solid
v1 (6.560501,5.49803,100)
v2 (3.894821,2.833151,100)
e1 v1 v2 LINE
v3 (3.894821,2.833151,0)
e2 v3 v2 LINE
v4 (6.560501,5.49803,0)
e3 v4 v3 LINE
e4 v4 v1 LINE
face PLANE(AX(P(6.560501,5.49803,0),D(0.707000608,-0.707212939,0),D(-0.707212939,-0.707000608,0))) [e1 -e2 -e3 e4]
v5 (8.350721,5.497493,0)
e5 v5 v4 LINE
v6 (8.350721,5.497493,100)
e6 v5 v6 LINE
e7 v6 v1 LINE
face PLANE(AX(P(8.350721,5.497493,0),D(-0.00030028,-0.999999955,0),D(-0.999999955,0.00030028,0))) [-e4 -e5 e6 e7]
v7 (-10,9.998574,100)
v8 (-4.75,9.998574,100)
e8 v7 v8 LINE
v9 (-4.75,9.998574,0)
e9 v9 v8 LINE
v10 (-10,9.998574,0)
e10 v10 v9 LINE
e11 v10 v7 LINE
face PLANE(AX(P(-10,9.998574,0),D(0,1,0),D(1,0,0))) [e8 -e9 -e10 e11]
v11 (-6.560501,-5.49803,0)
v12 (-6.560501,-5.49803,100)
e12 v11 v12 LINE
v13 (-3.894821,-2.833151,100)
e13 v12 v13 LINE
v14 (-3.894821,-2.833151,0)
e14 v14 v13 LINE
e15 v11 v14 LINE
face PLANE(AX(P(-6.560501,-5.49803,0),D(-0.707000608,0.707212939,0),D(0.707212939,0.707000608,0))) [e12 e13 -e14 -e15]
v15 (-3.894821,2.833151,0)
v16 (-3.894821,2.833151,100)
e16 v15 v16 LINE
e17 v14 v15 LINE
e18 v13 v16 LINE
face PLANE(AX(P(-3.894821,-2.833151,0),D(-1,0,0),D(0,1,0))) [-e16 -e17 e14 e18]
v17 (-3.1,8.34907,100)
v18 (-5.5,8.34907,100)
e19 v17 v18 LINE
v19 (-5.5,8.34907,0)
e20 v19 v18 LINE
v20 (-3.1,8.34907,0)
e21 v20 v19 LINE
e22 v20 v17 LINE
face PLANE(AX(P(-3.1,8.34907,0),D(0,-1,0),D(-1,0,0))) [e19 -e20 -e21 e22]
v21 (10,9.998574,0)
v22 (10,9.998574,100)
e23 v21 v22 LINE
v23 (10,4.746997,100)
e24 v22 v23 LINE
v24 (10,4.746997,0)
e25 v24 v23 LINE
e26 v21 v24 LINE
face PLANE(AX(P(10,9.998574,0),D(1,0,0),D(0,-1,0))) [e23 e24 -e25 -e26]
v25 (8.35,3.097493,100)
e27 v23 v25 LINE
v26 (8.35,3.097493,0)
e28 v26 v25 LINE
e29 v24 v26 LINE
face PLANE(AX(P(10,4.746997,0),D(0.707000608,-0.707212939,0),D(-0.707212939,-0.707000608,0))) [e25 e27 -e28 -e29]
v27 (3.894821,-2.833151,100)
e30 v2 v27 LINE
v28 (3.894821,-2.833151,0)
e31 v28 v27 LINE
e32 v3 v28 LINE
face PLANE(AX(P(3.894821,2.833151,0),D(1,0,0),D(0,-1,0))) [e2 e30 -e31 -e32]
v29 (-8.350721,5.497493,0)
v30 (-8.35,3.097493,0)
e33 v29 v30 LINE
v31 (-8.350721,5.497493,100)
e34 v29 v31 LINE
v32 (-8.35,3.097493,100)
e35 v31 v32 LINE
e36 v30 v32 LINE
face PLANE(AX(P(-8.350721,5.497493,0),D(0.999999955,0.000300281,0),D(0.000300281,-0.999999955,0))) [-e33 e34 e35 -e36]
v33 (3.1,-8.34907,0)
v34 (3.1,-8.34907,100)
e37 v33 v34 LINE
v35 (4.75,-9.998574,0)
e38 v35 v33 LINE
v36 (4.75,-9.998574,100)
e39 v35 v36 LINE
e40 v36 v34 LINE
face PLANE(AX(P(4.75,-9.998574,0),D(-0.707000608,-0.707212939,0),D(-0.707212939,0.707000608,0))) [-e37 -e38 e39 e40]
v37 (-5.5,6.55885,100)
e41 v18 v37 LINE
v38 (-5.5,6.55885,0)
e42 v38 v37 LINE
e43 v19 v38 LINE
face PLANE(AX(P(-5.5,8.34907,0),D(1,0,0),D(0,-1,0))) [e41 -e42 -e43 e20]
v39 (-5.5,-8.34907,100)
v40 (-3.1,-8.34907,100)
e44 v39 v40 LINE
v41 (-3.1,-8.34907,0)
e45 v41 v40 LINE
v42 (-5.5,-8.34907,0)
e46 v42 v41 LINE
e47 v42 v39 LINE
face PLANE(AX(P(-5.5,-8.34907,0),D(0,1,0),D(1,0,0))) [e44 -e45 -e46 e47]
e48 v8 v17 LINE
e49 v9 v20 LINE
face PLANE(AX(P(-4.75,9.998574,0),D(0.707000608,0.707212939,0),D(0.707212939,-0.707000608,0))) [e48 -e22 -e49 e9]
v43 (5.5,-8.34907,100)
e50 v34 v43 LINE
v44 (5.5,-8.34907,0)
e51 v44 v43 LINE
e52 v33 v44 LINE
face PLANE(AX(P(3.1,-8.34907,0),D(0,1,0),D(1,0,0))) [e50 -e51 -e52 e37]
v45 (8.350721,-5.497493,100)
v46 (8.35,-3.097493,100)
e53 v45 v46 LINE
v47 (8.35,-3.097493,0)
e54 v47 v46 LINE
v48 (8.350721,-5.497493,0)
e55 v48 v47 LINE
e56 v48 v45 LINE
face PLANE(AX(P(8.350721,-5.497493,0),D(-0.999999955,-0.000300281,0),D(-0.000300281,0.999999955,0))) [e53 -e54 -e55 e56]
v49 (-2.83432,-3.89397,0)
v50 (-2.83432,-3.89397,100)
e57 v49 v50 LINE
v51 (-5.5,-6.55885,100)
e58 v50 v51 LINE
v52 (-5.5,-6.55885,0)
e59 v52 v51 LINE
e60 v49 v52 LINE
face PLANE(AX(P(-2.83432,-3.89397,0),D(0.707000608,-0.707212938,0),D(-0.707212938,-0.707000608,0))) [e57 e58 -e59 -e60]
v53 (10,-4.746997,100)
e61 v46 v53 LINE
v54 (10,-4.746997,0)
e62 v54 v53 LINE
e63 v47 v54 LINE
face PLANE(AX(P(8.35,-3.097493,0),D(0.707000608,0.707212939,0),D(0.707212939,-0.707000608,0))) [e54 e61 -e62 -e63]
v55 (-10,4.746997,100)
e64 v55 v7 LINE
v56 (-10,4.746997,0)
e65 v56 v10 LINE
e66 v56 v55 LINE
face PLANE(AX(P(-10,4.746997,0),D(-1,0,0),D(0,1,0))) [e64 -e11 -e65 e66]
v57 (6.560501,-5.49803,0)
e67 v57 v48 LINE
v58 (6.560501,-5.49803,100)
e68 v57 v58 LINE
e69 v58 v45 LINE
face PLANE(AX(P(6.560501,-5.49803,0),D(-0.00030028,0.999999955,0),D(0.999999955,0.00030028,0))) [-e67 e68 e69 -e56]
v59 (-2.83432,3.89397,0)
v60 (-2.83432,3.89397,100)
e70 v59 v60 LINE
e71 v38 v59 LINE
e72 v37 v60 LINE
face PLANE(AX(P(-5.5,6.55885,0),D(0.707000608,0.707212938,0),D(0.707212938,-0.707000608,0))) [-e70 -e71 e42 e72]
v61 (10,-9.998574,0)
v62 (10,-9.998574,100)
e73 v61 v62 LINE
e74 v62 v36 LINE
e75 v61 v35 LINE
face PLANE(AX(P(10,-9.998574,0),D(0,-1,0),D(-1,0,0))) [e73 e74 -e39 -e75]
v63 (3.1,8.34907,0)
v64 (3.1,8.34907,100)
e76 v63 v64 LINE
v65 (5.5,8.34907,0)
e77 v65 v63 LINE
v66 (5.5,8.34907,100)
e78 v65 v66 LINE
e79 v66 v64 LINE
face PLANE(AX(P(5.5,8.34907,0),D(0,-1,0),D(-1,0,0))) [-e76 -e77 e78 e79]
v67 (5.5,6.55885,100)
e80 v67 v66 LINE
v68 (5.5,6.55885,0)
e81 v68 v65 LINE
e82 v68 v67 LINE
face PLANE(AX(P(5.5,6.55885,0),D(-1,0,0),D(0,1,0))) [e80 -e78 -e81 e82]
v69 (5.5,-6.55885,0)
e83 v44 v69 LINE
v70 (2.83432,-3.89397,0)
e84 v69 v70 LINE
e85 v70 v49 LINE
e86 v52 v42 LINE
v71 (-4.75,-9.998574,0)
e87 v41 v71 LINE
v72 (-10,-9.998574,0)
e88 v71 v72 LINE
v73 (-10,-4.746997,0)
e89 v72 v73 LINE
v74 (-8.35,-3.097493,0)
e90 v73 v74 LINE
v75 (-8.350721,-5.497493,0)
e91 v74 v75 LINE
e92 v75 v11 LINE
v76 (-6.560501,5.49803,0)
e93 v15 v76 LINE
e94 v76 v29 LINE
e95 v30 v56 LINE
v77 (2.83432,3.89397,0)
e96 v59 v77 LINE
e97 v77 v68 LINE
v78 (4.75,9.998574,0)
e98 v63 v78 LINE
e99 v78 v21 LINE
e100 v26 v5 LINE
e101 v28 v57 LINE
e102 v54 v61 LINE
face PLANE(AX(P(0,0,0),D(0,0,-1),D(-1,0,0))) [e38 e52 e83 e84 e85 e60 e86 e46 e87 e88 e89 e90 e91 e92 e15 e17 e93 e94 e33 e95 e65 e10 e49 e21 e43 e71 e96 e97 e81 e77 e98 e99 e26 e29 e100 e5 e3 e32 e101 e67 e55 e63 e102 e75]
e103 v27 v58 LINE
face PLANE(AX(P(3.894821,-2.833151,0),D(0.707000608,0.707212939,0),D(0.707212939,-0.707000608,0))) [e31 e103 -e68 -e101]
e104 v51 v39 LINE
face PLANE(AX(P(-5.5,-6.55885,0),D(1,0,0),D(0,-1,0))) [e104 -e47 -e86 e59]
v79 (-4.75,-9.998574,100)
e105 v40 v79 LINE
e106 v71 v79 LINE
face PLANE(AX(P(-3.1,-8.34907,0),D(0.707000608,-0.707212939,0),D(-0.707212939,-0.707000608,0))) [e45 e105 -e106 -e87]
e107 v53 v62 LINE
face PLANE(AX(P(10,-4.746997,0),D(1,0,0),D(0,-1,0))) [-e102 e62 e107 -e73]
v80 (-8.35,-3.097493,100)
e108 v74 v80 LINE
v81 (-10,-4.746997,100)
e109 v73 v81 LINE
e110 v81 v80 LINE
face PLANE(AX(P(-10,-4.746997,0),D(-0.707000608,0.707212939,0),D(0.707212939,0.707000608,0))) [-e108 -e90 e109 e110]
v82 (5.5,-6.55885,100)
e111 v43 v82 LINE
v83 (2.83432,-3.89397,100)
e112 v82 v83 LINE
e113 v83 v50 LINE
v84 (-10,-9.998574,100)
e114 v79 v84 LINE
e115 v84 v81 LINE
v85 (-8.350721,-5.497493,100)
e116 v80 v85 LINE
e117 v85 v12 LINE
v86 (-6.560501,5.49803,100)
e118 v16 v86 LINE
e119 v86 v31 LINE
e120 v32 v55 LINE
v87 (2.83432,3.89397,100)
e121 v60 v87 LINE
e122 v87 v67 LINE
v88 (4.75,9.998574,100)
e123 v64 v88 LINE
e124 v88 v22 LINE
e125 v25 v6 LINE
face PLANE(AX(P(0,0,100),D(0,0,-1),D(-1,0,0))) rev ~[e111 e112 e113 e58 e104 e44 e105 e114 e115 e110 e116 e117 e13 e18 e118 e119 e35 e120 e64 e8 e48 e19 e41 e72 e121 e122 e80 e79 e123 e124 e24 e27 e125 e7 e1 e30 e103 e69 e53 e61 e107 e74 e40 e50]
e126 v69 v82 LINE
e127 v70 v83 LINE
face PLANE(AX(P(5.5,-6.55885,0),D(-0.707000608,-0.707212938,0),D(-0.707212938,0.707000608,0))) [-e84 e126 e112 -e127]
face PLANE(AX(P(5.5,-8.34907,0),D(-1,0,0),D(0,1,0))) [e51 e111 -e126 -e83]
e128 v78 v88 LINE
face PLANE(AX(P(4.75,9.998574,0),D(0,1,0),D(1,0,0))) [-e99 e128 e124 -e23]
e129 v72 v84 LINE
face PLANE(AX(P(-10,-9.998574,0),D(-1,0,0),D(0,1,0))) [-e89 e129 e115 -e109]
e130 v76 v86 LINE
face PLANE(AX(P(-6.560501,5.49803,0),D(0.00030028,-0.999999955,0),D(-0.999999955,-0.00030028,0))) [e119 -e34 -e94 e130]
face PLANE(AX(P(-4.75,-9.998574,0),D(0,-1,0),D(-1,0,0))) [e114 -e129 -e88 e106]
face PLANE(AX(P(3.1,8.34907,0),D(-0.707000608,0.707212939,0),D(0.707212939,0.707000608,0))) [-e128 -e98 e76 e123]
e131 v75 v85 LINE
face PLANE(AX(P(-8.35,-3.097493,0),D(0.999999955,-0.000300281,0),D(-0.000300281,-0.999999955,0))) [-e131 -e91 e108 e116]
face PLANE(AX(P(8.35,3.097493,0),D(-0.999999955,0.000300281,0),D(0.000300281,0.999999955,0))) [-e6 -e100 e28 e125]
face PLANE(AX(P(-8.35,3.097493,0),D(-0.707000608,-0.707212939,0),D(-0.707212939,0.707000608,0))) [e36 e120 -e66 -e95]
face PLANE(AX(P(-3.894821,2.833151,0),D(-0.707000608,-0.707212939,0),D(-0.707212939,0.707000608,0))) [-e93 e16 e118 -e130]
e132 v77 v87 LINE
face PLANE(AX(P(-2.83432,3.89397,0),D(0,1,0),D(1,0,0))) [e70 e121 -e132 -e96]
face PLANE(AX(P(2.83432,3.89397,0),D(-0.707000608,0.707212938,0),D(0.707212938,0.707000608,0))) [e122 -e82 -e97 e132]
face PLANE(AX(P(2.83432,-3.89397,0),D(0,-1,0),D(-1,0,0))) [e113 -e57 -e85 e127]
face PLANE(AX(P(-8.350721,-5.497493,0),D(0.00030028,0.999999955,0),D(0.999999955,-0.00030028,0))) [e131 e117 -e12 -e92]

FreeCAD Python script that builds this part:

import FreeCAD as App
import Part
import Sketcher


def add_polygon(sketch, points):
    """Adds a closed chain of lines whose ends are joined by coincident constraints."""
    first, n = sketch.GeometryCount, len(points)
    for a, b in zip(points, points[1:] + points[:1]):
        sketch.addGeometry(Part.LineSegment(App.Vector(*a, 0), App.Vector(*b, 0)), False)
    for i in range(n):
        sketch.addConstraint(Sketcher.Constraint("Coincident", first + i, 2, first + (i + 1) % n, 1))

doc = App.newDocument("Part")
body = doc.addObject("PartDesign::Body", "Body")

# Sketch on XY plane
sketch1 = doc.addObject("Sketcher::SketchObject", "Sketch")
body.addObject(sketch1)
sketch1.AttachmentSupport = (doc.XY_Plane, [""])
sketch1.MapMode = "FlatFace"
add_polygon(sketch1, [(2.83432, 3.89397), (-2.83432, 3.89397), (-5.5, 6.55885), (-5.5, 8.34907), (-3.1, 8.34907), (-4.75, 9.998574), (-10, 9.998574), (-10, 4.746997), (-8.35, 3.097493), (-8.350721, 5.497493), (-6.560501, 5.49803), (-3.894821, 2.833151), (-3.894821, -2.833151), (-6.560501, -5.49803), (-8.350721, -5.497493), (-8.35, -3.097493), (-10, -4.746997), (-10, -9.998574), (-4.75, -9.998574), (-3.1, -8.34907), (-5.5, -8.34907), (-5.5, -6.55885), (-2.83432, -3.89397), (2.83432, -3.89397), (5.5, -6.55885), (5.5, -8.34907), (3.1, -8.34907), (4.75, -9.998574), (10, -9.998574), (10, -4.746997), (8.35, -3.097493), (8.350721, -5.497493), (6.560501, -5.49803), (3.894821, -2.833151), (3.894821, 2.833151), (6.560501, 5.49803), (8.350721, 5.497493), (8.35, 3.097493), (10, 4.746997), (10, 9.998574), (4.75, 9.998574), (3.1, 8.34907), (5.5, 8.34907), (5.5, 6.55885)])  # lines 0-43
sketch1.addConstraint([
    Sketcher.Constraint("Horizontal", 0),
    Sketcher.Constraint("Vertical", 2),
    Sketcher.Constraint("Horizontal", 3),
    Sketcher.Constraint("Horizontal", 5),
    Sketcher.Constraint("Vertical", 6),
    Sketcher.Constraint("Vertical", 11),
    Sketcher.Constraint("Vertical", 16),
    Sketcher.Constraint("Horizontal", 17),
    Sketcher.Constraint("Horizontal", 19),
    Sketcher.Constraint("Vertical", 20),
    Sketcher.Constraint("Horizontal", 22),
    Sketcher.Constraint("Vertical", 24),
    Sketcher.Constraint("Horizontal", 25),
    Sketcher.Constraint("Horizontal", 27),
    Sketcher.Constraint("Vertical", 28),
    Sketcher.Constraint("Vertical", 33),
    Sketcher.Constraint("Vertical", 38),
    Sketcher.Constraint("Horizontal", 39),
    Sketcher.Constraint("Horizontal", 41),
    Sketcher.Constraint("Vertical", 42),
    Sketcher.Constraint("Symmetric", 0, 2, 22, 2, -1, 1),
    Sketcher.Constraint("Symmetric", 1, 2, 23, 2, -1, 1),
    Sketcher.Constraint("Symmetric", 3, 2, 25, 2, -1, 1),
    Sketcher.Constraint("Symmetric", 4, 2, 26, 2, -1, 1),
    Sketcher.Constraint("Symmetric", 6, 2, 28, 2, -1, 1),
    Sketcher.Constraint("Symmetric", 7, 2, 29, 2, -1, 1),
    Sketcher.Constraint("Symmetric", 8, 2, 30, 2, -1, 1),
    Sketcher.Constraint("Symmetric", 9, 2, 31, 2, -1, 1),
    Sketcher.Constraint("Symmetric", 10, 2, 32, 2, -1, 1),
    Sketcher.Constraint("Symmetric", 12, 2, 34, 2, -1, 1),
    Sketcher.Constraint("Symmetric", 13, 2, 35, 2, -1, 1),
    Sketcher.Constraint("Symmetric", 14, 2, 36, 2, -1, 1),
    Sketcher.Constraint("Symmetric", 15, 2, 37, 2, -1, 1),
    Sketcher.Constraint("Symmetric", 17, 2, 39, 2, -1, 1),
    Sketcher.Constraint("Symmetric", 18, 2, 40, 2, -1, 1),
    Sketcher.Constraint("Symmetric", 20, 2, 42, 2, -1, 1),
    Sketcher.Constraint("Symmetric", 20, 2, 23, 2, -2),
    Sketcher.Constraint("Symmetric", 18, 2, 25, 2, -2),
    Sketcher.Constraint("Symmetric", 17, 2, 26, 2, -2),
    Sketcher.Constraint("Symmetric", 15, 2, 28, 2, -2),
    Sketcher.Constraint("Symmetric", 14, 2, 29, 2, -2),
    Sketcher.Constraint("Symmetric", 13, 2, 30, 2, -2),
    Sketcher.Constraint("Symmetric", 12, 2, 31, 2, -2),
    Sketcher.Constraint("Parallel", 1, 4),
    Sketcher.Constraint("Parallel", 4, 7),
    Sketcher.Constraint("Perpendicular", 8, 9),
    Sketcher.Constraint("Parallel", 7, 10),
    Sketcher.Constraint("Parallel", 12, 15),
    Sketcher.Constraint("Parallel", 18, 21),
    Sketcher.Constraint("Parallel", 21, 34),
    Sketcher.Constraint("Parallel", 40, 43),
    Sketcher.Constraint("Equal", 4, 7),
    Sketcher.Constraint("Equal", 1, 10),
    Sketcher.Constraint("DistanceX", 3, 1, 3, 2, 2.4),
    Sketcher.Constraint("DistanceX", 5, 2, -1, 1, 10.0),
    Sketcher.Constraint("Distance", 8, 2.4),
    Sketcher.Constraint("DistanceX", 5, 2, 5, 1, 5.25),
    Sketcher.Constraint("DistanceX", 1, 2, -1, 1, 5.5),
    Sketcher.Constraint("DistanceY", 11, 2, 11, 1, 5.666302),
    Sketcher.Constraint("DistanceY", 12, 2, 0, 2, 9.392001),
    Sketcher.Constraint("DistanceX", 0, 2, 0, 1, 5.668641),
    Sketcher.Constraint("DistanceY", 2, 1, 2, 2, 1.79022),
    Sketcher.Constraint("DistanceX", 9, 2, -1, 1, 6.560501),
    Sketcher.Constraint("DistanceY", 0, 2, 2, 2, 4.455099),
    Sketcher.Constraint("DistanceX", 8, 2, 10, 2, 4.455899),
])
pad1 = doc.addObject("PartDesign::Pad", "Pad")
body.addObject(pad1)
pad1.Profile = sketch1
pad1.Length = 100

doc.recompute()
